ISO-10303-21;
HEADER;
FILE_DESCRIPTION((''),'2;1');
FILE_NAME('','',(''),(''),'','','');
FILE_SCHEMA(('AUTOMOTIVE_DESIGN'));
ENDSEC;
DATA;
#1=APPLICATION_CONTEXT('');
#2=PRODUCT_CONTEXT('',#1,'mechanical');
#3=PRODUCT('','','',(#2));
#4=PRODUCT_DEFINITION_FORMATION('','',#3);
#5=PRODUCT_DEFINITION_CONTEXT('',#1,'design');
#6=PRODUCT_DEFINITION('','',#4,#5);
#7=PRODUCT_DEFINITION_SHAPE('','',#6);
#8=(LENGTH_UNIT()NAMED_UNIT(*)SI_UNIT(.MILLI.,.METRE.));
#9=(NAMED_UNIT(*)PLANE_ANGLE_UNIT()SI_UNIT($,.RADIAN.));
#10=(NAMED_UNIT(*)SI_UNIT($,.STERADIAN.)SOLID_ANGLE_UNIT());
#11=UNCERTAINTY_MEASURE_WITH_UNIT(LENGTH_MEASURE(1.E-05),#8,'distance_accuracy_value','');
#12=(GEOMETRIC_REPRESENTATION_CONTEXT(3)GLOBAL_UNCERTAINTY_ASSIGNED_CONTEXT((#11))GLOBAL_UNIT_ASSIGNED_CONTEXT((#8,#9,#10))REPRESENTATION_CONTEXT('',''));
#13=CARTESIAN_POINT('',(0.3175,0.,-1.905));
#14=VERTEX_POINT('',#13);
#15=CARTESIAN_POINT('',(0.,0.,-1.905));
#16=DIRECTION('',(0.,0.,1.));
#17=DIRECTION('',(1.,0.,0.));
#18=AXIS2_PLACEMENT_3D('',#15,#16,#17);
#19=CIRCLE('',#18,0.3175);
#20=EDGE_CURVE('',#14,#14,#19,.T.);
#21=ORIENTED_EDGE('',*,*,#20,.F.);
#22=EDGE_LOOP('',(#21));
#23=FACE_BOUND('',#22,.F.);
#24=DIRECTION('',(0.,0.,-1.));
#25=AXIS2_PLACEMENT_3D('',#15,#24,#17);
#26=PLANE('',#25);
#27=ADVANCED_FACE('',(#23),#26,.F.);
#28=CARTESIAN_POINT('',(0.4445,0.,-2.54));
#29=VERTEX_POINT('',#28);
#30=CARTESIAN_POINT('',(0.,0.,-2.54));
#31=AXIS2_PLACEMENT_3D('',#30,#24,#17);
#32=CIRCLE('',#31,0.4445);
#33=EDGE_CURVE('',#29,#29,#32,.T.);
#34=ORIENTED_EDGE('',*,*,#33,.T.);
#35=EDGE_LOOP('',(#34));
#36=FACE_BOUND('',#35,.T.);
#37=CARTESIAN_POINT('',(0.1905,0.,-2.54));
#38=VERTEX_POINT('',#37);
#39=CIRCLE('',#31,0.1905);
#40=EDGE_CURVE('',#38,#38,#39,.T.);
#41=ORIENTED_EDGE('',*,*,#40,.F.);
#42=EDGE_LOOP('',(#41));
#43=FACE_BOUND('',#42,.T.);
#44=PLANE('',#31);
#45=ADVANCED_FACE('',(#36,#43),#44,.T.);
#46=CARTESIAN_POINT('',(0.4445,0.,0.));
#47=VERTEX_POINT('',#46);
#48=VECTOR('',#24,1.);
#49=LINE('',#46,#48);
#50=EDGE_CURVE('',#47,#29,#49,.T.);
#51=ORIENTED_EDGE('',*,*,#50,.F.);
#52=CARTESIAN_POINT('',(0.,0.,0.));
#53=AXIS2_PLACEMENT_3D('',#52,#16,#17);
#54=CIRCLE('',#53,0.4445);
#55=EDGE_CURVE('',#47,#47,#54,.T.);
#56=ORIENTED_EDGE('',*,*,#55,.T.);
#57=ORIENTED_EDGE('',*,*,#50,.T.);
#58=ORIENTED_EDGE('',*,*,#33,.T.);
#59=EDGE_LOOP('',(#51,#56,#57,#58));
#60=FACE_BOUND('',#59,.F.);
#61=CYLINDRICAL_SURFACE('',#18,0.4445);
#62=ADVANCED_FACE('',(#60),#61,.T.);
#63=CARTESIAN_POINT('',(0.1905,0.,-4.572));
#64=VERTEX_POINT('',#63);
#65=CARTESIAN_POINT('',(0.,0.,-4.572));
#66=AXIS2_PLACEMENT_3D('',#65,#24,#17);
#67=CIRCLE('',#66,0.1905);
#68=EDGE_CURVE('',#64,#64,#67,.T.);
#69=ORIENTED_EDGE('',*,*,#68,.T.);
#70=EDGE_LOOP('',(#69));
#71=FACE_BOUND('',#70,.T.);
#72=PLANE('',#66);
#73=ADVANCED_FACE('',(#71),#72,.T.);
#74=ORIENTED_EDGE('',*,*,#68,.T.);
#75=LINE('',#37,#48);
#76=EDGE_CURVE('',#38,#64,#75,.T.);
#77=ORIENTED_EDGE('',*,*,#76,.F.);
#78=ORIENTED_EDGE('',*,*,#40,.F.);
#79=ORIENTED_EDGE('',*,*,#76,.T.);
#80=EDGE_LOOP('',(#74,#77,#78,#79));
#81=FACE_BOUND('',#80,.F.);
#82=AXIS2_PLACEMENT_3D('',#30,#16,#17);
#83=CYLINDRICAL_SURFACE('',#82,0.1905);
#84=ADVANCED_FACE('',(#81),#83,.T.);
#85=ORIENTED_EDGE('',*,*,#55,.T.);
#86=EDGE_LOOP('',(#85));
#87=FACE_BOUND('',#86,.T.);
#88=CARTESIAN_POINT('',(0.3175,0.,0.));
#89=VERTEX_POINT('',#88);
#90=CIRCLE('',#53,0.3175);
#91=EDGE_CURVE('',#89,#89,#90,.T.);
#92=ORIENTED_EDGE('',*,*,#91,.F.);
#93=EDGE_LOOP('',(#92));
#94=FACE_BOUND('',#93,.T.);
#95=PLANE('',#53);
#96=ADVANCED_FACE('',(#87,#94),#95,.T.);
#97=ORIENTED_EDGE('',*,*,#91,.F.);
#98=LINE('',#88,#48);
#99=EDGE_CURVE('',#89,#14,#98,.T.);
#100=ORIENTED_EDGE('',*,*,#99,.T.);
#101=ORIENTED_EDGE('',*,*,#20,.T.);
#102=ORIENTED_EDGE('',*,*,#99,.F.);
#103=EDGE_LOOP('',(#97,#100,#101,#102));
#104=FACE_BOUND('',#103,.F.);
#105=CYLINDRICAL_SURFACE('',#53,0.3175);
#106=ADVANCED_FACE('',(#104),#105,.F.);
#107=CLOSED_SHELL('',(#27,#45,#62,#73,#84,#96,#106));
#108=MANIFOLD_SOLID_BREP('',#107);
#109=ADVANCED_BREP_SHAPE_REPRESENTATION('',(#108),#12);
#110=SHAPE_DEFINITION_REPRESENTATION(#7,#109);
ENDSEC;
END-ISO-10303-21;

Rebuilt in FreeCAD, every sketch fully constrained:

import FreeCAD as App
import Part
import Sketcher
from FreeCAD import Vector
Q = App.Units.Quantity

doc = App.newDocument("Part")
body = doc.addObject("PartDesign::Body", "Body")

# Sketch on XY plane
sketch1 = body.newObject("Sketcher::SketchObject", "Sketch")
sketch1.AttachmentSupport = (doc.getObject("XY_Plane"), [""])
sketch1.MapMode = "FlatFace"
sketch1.addGeometry(Part.Circle(Vector(0, 0, 0), Vector(0, 0, 1), 0.44), False)
sketch1.addGeometry(Part.Circle(Vector(0, 0, 0), Vector(0, 0, 1), 0.32), False)
sketch1.addConstraint(Sketcher.Constraint("Coincident", 0, 3, -1, 1))
sketch1.addConstraint(Sketcher.Constraint("Coincident", 1, 3, -1, 1))
sketch1.addConstraint(Sketcher.Constraint("Diameter", 0, Q("0.035 in")))
sketch1.addConstraint(Sketcher.Constraint("Diameter", 1, Q("0.025 in")))
pad1 = body.newObject("PartDesign::Pad", "Pad")
pad1.Profile = sketch1
pad1.Length = Q("0.075 in")
pad1.Reversed = True

# Sketch on XY plane
sketch2 = body.newObject("Sketcher::SketchObject", "Sketch001")
sketch2.AttachmentSupport = (doc.getObject("XY_Plane"), [""])
sketch2.MapMode = "FlatFace"
sketch2.AttachmentOffset = App.Placement(Vector(0, 0, -0.075 * 25.4), App.Rotation())
sketch2.addGeometry(Part.Circle(Vector(0, 0, 0), Vector(0, 0, 1), 0.44), False)
sketch2.addConstraint(Sketcher.Constraint("Coincident", 0, 3, -1, 1))
sketch2.addConstraint(Sketcher.Constraint("Diameter", 0, Q("0.035 in")))
pad2 = body.newObject("PartDesign::Pad", "Pad001")
pad2.Profile = sketch2
pad2.Length = Q("0.025 in")
pad2.Reversed = True

# Sketch on XY plane
sketch3 = body.newObject("Sketcher::SketchObject", "Sketch002")
sketch3.AttachmentSupport = (doc.getObject("XY_Plane"), [""])
sketch3.MapMode = "FlatFace"
sketch3.AttachmentOffset = App.Placement(Vector(0, 0, -0.1 * 25.4), App.Rotation())
sketch3.addGeometry(Part.Circle(Vector(0, 0, 0), Vector(0, 0, 1), 0.19), False)
sketch3.addConstraint(Sketcher.Constraint("Coincident", 0, 3, -1, 1))
sketch3.addConstraint(Sketcher.Constraint("Diameter", 0, Q("0.015 in")))
pad3 = body.newObject("PartDesign::Pad", "Pad002")
pad3.Profile = sketch3
pad3.Length = Q("0.08 in")
pad3.Reversed = True

doc.recompute()
